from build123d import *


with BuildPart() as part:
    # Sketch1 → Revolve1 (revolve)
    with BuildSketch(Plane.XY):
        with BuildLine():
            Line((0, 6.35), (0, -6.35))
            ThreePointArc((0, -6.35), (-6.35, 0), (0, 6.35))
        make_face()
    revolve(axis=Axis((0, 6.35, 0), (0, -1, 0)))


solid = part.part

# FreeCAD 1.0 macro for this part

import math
import FreeCAD as App
import Part
import Sketcher
Q = App.Units.Quantity

doc = App.newDocument("Part")
params = doc.addObject("Spreadsheet::Sheet", "Params")
for row, (alias, value) in enumerate([
    ("sketch1_radius", "0.25 in"),
    ("revolution_angle", "360 deg"),
], start=1):
    params.set(f"A{row}", alias)
    params.set(f"B{row}", "=" + value)
    params.setAlias(f"B{row}", alias)

body = doc.addObject("PartDesign::Body", "Body")

sketch1 = body.newObject("Sketcher::SketchObject", "Sketch")
sketch1.AttachmentSupport = (doc.getObject("XY_Plane"), [""])
sketch1.MapMode = "FlatFace"
sketch1.addGeometry([
    Part.LineSegment(App.Vector(0, -6.35, 0), App.Vector(0, 6.35, 0)),
    Part.ArcOfCircle(Part.Circle(App.Vector(0, 0, 0), App.Vector(0, 0, 1), 6.35), math.radians(90), math.radians(270)),
], False)
sketch1.addConstraint([
    Sketcher.Constraint("Coincident", 0, 1, 1, 2),
    Sketcher.Constraint("Coincident", 1, 1, 0, 2),
    Sketcher.Constraint("Vertical", 0),
    Sketcher.Constraint("Coincident", 1, 3, -1, 1),
    Sketcher.Constraint("PointOnObject", 0, 1, -2),
    Sketcher.Constraint("Radius", 1, Q("0.25 in")),
])
sketch1.setExpression("Constraints[5]", "Params.sketch1_radius")
revolution = body.newObject("PartDesign::Revolution", "Revolution")
revolution.Profile = sketch1
revolution.ReferenceAxis = (sketch1, ["V_Axis"])
revolution.setExpression("Angle", "Params.revolution_angle")

doc.recompute()
